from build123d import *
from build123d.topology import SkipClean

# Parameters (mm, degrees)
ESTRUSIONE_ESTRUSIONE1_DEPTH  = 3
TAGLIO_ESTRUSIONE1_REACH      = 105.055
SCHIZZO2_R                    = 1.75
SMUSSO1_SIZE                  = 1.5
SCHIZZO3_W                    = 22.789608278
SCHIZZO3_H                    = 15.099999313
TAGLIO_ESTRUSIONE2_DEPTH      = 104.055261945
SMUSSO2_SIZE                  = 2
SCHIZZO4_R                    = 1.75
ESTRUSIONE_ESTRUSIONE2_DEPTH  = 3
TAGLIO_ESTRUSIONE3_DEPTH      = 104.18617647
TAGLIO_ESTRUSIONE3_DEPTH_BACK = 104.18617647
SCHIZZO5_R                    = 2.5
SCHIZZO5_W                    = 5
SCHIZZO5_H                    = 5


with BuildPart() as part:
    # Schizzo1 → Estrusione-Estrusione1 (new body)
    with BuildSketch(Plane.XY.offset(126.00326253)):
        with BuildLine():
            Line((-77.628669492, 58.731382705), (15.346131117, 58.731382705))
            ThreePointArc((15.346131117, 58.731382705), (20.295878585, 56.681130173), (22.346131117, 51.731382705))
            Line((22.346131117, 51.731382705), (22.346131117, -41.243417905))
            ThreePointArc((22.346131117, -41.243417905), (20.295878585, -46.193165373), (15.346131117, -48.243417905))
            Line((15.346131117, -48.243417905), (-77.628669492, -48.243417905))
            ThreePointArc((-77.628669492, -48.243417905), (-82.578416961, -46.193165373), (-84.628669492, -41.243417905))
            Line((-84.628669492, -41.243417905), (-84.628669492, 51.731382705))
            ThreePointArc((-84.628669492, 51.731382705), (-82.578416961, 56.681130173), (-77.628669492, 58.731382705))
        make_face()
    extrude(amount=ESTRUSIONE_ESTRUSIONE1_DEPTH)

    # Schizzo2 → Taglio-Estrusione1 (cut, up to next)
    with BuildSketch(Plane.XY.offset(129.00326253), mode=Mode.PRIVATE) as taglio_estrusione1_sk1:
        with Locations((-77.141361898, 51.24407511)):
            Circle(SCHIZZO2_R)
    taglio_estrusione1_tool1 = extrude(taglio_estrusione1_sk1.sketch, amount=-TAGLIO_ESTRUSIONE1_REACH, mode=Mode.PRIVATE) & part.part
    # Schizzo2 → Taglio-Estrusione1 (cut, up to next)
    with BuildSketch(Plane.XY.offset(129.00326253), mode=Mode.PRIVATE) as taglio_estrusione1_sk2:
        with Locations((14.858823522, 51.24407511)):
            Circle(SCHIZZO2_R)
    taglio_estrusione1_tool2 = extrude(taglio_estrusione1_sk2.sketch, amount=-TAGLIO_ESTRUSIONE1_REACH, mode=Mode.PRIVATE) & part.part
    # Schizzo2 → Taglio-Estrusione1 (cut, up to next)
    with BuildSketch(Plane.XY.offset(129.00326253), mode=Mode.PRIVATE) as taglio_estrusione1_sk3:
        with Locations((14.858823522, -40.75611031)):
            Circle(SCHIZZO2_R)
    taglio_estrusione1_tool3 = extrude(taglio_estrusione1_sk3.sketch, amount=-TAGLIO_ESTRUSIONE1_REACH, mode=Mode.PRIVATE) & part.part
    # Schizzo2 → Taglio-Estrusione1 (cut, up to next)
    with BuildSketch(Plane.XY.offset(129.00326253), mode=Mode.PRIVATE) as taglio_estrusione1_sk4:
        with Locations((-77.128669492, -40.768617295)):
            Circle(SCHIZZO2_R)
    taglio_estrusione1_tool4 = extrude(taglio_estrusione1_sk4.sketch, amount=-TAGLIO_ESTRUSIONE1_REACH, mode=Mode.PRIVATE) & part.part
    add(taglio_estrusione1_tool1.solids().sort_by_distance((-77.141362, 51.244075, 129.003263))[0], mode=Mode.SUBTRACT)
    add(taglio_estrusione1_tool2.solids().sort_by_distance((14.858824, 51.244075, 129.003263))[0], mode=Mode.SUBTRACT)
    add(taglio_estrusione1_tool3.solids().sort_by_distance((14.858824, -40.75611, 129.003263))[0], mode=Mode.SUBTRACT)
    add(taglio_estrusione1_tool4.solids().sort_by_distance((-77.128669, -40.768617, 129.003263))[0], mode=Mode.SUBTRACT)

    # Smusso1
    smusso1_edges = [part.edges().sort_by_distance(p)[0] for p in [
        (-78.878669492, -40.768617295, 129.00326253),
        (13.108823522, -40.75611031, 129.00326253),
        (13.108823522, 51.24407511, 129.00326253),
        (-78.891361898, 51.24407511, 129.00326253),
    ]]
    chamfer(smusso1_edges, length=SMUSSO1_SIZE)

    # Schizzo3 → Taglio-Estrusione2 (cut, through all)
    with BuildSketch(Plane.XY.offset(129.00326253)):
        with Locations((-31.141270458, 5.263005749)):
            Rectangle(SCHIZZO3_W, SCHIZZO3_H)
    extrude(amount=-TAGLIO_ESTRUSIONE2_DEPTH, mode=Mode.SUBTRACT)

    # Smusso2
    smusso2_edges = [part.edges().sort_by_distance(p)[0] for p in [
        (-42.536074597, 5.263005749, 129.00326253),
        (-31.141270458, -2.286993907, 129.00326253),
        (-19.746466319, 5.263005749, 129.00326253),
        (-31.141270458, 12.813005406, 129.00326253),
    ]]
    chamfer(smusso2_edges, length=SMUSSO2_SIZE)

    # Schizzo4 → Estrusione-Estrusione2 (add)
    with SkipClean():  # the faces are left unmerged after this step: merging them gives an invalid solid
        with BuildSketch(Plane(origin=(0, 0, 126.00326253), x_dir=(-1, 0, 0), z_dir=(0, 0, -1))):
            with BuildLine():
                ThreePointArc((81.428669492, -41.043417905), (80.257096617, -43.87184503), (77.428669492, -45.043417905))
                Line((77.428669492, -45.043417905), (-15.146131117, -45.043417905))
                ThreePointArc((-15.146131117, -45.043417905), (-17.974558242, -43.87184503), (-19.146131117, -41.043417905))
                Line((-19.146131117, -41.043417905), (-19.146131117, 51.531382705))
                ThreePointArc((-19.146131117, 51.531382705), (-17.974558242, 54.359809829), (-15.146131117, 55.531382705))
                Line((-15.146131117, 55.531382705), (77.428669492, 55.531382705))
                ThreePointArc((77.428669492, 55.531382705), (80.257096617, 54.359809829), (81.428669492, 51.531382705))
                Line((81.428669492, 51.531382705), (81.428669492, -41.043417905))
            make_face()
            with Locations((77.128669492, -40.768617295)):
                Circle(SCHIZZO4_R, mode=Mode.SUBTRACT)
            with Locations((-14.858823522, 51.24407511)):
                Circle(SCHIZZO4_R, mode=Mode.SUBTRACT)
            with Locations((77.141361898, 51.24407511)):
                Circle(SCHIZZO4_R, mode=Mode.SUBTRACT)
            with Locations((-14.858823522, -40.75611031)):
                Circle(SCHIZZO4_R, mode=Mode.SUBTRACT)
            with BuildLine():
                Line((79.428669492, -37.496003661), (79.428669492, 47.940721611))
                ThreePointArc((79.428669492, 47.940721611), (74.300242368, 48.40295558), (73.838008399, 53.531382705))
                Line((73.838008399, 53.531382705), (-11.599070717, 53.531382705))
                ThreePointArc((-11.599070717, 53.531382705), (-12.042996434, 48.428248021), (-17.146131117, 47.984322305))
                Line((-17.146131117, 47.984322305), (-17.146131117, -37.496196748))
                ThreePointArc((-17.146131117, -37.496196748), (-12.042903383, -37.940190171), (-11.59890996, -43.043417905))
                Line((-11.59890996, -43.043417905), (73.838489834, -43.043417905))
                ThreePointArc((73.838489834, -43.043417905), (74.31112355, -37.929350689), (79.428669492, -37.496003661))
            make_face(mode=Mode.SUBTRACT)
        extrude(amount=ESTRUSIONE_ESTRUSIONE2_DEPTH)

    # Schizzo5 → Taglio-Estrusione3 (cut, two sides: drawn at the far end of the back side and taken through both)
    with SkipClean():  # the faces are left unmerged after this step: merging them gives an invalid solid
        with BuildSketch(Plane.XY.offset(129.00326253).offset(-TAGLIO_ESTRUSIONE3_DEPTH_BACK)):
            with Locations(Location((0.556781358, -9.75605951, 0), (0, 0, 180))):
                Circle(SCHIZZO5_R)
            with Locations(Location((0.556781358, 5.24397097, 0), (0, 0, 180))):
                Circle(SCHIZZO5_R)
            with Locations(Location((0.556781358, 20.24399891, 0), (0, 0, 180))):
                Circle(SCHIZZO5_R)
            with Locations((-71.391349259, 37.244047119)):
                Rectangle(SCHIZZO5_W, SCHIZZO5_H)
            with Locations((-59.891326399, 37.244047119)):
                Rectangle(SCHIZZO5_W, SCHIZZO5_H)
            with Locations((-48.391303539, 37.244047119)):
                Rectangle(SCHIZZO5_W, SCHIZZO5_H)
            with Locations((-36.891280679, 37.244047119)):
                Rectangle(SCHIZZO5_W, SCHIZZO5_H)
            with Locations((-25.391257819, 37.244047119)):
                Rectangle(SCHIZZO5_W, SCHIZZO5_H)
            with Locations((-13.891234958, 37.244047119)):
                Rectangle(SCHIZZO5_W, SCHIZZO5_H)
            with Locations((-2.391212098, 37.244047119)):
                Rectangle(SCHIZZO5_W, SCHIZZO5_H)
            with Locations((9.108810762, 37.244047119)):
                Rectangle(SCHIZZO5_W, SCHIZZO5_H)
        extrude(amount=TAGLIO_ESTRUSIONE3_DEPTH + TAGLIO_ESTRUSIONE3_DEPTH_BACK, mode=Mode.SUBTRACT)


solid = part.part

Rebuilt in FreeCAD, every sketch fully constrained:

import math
import FreeCAD as App
import Part
import Sketcher
from FreeCAD import Vector


def edges_at(feature, points):
    """Names of the edges that pass closest to the given points."""
    edges = feature.Shape.Edges
    near = lambda p: min(range(len(edges)), key=lambda i: edges[i].distToShape(Part.Vertex(*p))[0])
    return sorted({f"Edge{near(p) + 1}" for p in points})

doc = App.newDocument("Part")
body = doc.addObject("PartDesign::Body", "Body")

sketch1 = body.newObject("Sketcher::SketchObject", "Sketch")
sketch1.AttachmentSupport = (doc.getObject("XY_Plane"), [""])
sketch1.MapMode = "FlatFace"
sketch1.AttachmentOffset = App.Placement(Vector(0, 0, 126.003263), App.Rotation())
sketch1.addGeometry([
    Part.LineSegment(Vector(15.346131, 58.731383, 0), Vector(-77.628669, 58.731383, 0)),
    Part.ArcOfCircle(Part.Circle(Vector(-77.628669, 51.731383, 0), Vector(0, 0, 1), 7), math.radians(90), math.radians(180)),
    Part.LineSegment(Vector(-84.628669, 51.731383, 0), Vector(-84.628669, -41.243418, 0)),
    Part.ArcOfCircle(Part.Circle(Vector(-77.628669, -41.243418, 0), Vector(0, 0, 1), 7), math.radians(180), math.radians(270)),
    Part.LineSegment(Vector(-77.628669, -48.243418, 0), Vector(15.346131, -48.243418, 0)),
    Part.ArcOfCircle(Part.Circle(Vector(15.346131, -41.243418, 0), Vector(0, 0, 1), 7), math.radians(-90), math.radians(0)),
    Part.LineSegment(Vector(22.346131, -41.243418, 0), Vector(22.346131, 51.731383, 0)),
    Part.ArcOfCircle(Part.Circle(Vector(15.346131, 51.731383, 0), Vector(0, 0, 1), 7), math.radians(0), math.radians(90)),
], False)
sketch1.addConstraint([
    Sketcher.Constraint("Tangent", 0, 2, 1, 1),
    Sketcher.Constraint("Tangent", 1, 2, 2, 1),
    Sketcher.Constraint("Tangent", 2, 2, 3, 1),
    Sketcher.Constraint("Tangent", 3, 2, 4, 1),
    Sketcher.Constraint("Tangent", 4, 2, 5, 1),
    Sketcher.Constraint("Tangent", 5, 2, 6, 1),
    Sketcher.Constraint("Tangent", 6, 2, 7, 1),
    Sketcher.Constraint("Tangent", 7, 2, 0, 1),
    Sketcher.Constraint("Horizontal", 0),
    Sketcher.Constraint("Vertical", 2),
    Sketcher.Constraint("Horizontal", 4),
    Sketcher.Constraint("Vertical", 6),
    Sketcher.Constraint("Equal", 1, 3),
    Sketcher.Constraint("Equal", 3, 5),
    Sketcher.Constraint("Equal", 5, 7),
    Sketcher.Constraint("Equal", 4, 2),
    Sketcher.Constraint("Radius", 1, 7.0),
    Sketcher.Constraint("DistanceX", 0, 2, 0, 1, 92.974801),
    Sketcher.Constraint("DistanceX", 1, 3, -1, 1, 77.628669),
    Sketcher.Constraint("DistanceY", -1, 1, 1, 3, 51.731383),
])
pad1 = body.newObject("PartDesign::Pad", "Pad")
pad1.Profile = sketch1
pad1.Length = 3

sketch2 = body.newObject("Sketcher::SketchObject", "Sketch001")
sketch2.AttachmentSupport = (doc.getObject("XY_Plane"), [""])
sketch2.MapMode = "FlatFace"
sketch2.AttachmentOffset = App.Placement(Vector(0, 0, 129.003263), App.Rotation())
sketch2.addGeometry(Part.Circle(Vector(-77.141362, 51.244075, 0), Vector(0, 0, 1), 1.75), False)
sketch2.addConstraint([
    Sketcher.Constraint("Diameter", 0, 3.5),
    Sketcher.Constraint("DistanceX", 0, 3, -1, 1, 77.141362),
    Sketcher.Constraint("DistanceY", -1, 1, 0, 3, 51.244075),
])
pocket1 = body.newObject("PartDesign::Pocket", "Pocket")
pocket1.Profile = sketch2
pocket1.Type = "UpToFirst"

sketch3 = body.newObject("Sketcher::SketchObject", "Sketch002")
sketch3.AttachmentSupport = (doc.getObject("XY_Plane"), [""])
sketch3.MapMode = "FlatFace"
sketch3.AttachmentOffset = App.Placement(Vector(0, 0, 129.003263), App.Rotation())
sketch3.addGeometry(Part.Circle(Vector(14.858824, 51.244075, 0), Vector(0, 0, 1), 1.75), False)
sketch3.addConstraint([
    Sketcher.Constraint("Diameter", 0, 3.5),
    Sketcher.Constraint("DistanceX", -1, 1, 0, 3, 14.858824),
    Sketcher.Constraint("DistanceY", -1, 1, 0, 3, 51.244075),
])
pocket2 = body.newObject("PartDesign::Pocket", "Pocket001")
pocket2.Profile = sketch3
pocket2.Type = "UpToFirst"

sketch4 = body.newObject("Sketcher::SketchObject", "Sketch003")
sketch4.AttachmentSupport = (doc.getObject("XY_Plane"), [""])
sketch4.MapMode = "FlatFace"
sketch4.AttachmentOffset = App.Placement(Vector(0, 0, 129.003263), App.Rotation())
sketch4.addGeometry(Part.Circle(Vector(14.858824, -40.75611, 0), Vector(0, 0, 1), 1.75), False)
sketch4.addConstraint([
    Sketcher.Constraint("Diameter", 0, 3.5),
    Sketcher.Constraint("DistanceY", 0, 3, -1, 1, 40.75611),
    Sketcher.Constraint("DistanceX", -1, 1, 0, 3, 14.858824),
])
pocket3 = body.newObject("PartDesign::Pocket", "Pocket002")
pocket3.Profile = sketch4
pocket3.Type = "UpToFirst"

sketch5 = body.newObject("Sketcher::SketchObject", "Sketch004")
sketch5.AttachmentSupport = (doc.getObject("XY_Plane"), [""])
sketch5.MapMode = "FlatFace"
sketch5.AttachmentOffset = App.Placement(Vector(0, 0, 129.003263), App.Rotation())
sketch5.addGeometry(Part.Circle(Vector(-77.128669, -40.768617, 0), Vector(0, 0, 1), 1.75), False)
sketch5.addConstraint([
    Sketcher.Constraint("Diameter", 0, 3.5),
    Sketcher.Constraint("DistanceX", 0, 3, -1, 1, 77.128669),
    Sketcher.Constraint("DistanceY", 0, 3, -1, 1, 40.768617),
])
pocket4 = body.newObject("PartDesign::Pocket", "Pocket003")
pocket4.Profile = sketch5
pocket4.Type = "UpToFirst"
doc.recompute()

chamfer = body.newObject("PartDesign::Chamfer", "Chamfer")
chamfer.Base = (pocket4, edges_at(pocket4, [
    (-78.879, -40.769, 129.003),
    (13.109, -40.756, 129.003),
    (13.109, 51.244, 129.003),
    (-78.891, 51.244, 129.003),
]))
chamfer.Size = 1.5

sketch6 = body.newObject("Sketcher::SketchObject", "Sketch005")
sketch6.AttachmentSupport = (doc.getObject("XY_Plane"), [""])
sketch6.MapMode = "FlatFace"
sketch6.AttachmentOffset = App.Placement(Vector(0, 0, 129.003263), App.Rotation())
sketch6.addGeometry([
    Part.LineSegment(Vector(-42.536075, 12.813005, 0), Vector(-42.536075, -2.286994, 0)),
    Part.LineSegment(Vector(-42.536075, -2.286994, 0), Vector(-19.746466, -2.286994, 0)),
    Part.LineSegment(Vector(-19.746466, -2.286994, 0), Vector(-19.746466, 12.813005, 0)),
    Part.LineSegment(Vector(-19.746466, 12.813005, 0), Vector(-42.536075, 12.813005, 0)),
], False)
sketch6.addConstraint([
    Sketcher.Constraint("Coincident", 0, 2, 1, 1),
    Sketcher.Constraint("Coincident", 1, 2, 2, 1),
    Sketcher.Constraint("Coincident", 2, 2, 3, 1),
    Sketcher.Constraint("Coincident", 3, 2, 0, 1),
    Sketcher.Constraint("Vertical", 0),
    Sketcher.Constraint("Horizontal", 1),
    Sketcher.Constraint("Vertical", 2),
    Sketcher.Constraint("Horizontal", 3),
    Sketcher.Constraint("DistanceY", 0, 2, 0, 1, 15.099999),
    Sketcher.Constraint("DistanceX", 1, 1, 1, 2, 22.789608),
    Sketcher.Constraint("DistanceX", 0, 2, -1, 1, 42.536075),
    Sketcher.Constraint("DistanceY", 0, 2, -1, 1, 2.286994),
])
pocket5 = body.newObject("PartDesign::Pocket", "Pocket004")
pocket5.Profile = sketch6
pocket5.Type = "ThroughAll"
doc.recompute()

chamfer2 = body.newObject("PartDesign::Chamfer", "Chamfer001")
chamfer2.Base = (pocket5, edges_at(pocket5, [
    (-42.536, 5.263, 129.003),
    (-31.141, -2.287, 129.003),
    (-19.746, 5.263, 129.003),
    (-31.141, 12.813, 129.003),
]))
chamfer2.Size = 2

sketch7 = body.newObject("Sketcher::SketchObject", "Sketch006")
sketch7.AttachmentSupport = (doc.getObject("XY_Plane"), [""])
sketch7.MapMode = "FlatFace"
sketch7.AttachmentOffset = App.Placement(Vector(0, 0, 126.003263), App.Rotation())
sketch7.addGeometry([
    Part.ArcOfCircle(Part.Circle(Vector(-77.428669, -41.043418, 0), Vector(0, 0, 1), 4), math.radians(180), math.radians(270)),
    Part.LineSegment(Vector(-81.428669, -41.043418, 0), Vector(-81.428669, 51.531383, 0)),
    Part.ArcOfCircle(Part.Circle(Vector(-77.428669, 51.531383, 0), Vector(0, 0, 1), 4), math.radians(90), math.radians(180)),
    Part.LineSegment(Vector(-77.428669, 55.531383, 0), Vector(15.146131, 55.531383, 0)),
    Part.ArcOfCircle(Part.Circle(Vector(15.146131, 51.531383, 0), Vector(0, 0, 1), 4), math.radians(0), math.radians(90)),
    Part.LineSegment(Vector(19.146131, 51.531383, 0), Vector(19.146131, -41.043418, 0)),
    Part.ArcOfCircle(Part.Circle(Vector(15.146131, -41.043418, 0), Vector(0, 0, 1), 4), math.radians(-90), math.radians(0)),
    Part.LineSegment(Vector(15.146131, -45.043418, 0), Vector(-77.428669, -45.043418, 0)),
    Part.Circle(Vector(-77.128669, -40.768617, 0), Vector(0, 0, 1), 1.75),
    Part.Circle(Vector(14.858824, -40.75611, 0), Vector(0, 0, 1), 1.75),
    Part.Circle(Vector(-77.141362, 51.244075, 0), Vector(0, 0, 1), 1.75),
    Part.ArcOfCircle(Part.Circle(Vector(-77.128669, -40.768617, 0), Vector(0, 0, 1), 4), math.radians(-34.659633), math.radians(125.099632)),
    Part.LineSegment(Vector(-73.83849, -43.043418, 0), Vector(11.59891, -43.043418, 0)),
    Part.ArcOfCircle(Part.Circle(Vector(14.858824, -40.75611, 0), Vector(0, 0, 1), 3.982312), math.radians(54.944707), math.radians(215.055293)),
    Part.LineSegment(Vector(17.146131, -37.496197, 0), Vector(17.146131, 47.984322, 0)),
    Part.ArcOfCircle(Part.Circle(Vector(14.858824, 51.244075, 0), Vector(0, 0, 1), 3.982181), math.radians(144.943379), math.radians(305.056621)),
    Part.LineSegment(Vector(11.599071, 53.531383, 0), Vector(-73.838008, 53.531383, 0)),
    Part.ArcOfCircle(Part.Circle(Vector(-77.141362, 51.244075, 0), Vector(0, 0, 1), 4.01795), math.radians(-124.699498), math.radians(34.699498)),
    Part.LineSegment(Vector(-79.428669, 47.940722, 0), Vector(-79.428669, -37.496004, 0)),
    Part.Circle(Vector(14.858824, 51.244075, 0), Vector(0, 0, 1), 1.75),
], False)
sketch7.addConstraint([
    Sketcher.Constraint("Tangent", 0, 1, 1, 1),
    Sketcher.Constraint("Tangent", 1, 2, 2, 2),
    Sketcher.Constraint("Tangent", 2, 1, 3, 1),
    Sketcher.Constraint("Tangent", 3, 2, 4, 2),
    Sketcher.Constraint("Tangent", 4, 1, 5, 1),
    Sketcher.Constraint("Tangent", 5, 2, 6, 2),
    Sketcher.Constraint("Tangent", 6, 1, 7, 1),
    Sketcher.Constraint("Tangent", 7, 2, 0, 2),
    Sketcher.Constraint("Coincident", 11, 1, 12, 1),
    Sketcher.Constraint("Coincident", 12, 2, 13, 2),
    Sketcher.Constraint("Coincident", 13, 1, 14, 1),
    Sketcher.Constraint("Coincident", 14, 2, 15, 2),
    Sketcher.Constraint("Coincident", 15, 1, 16, 1),
    Sketcher.Constraint("Coincident", 16, 2, 17, 2),
    Sketcher.Constraint("Coincident", 17, 1, 18, 1),
    Sketcher.Constraint("Coincident", 18, 2, 11, 2),
    Sketcher.Constraint("Vertical", 1),
    Sketcher.Constraint("Horizontal", 3),
    Sketcher.Constraint("Vertical", 5),
    Sketcher.Constraint("Horizontal", 7),
    Sketcher.Constraint("Horizontal", 12),
    Sketcher.Constraint("Vertical", 14),
    Sketcher.Constraint("Horizontal", 16),
    Sketcher.Constraint("Vertical", 18),
    Sketcher.Constraint("Coincident", 11, 3, 8, 3),
    Sketcher.Constraint("Coincident", 13, 3, 9, 3),
    Sketcher.Constraint("Coincident", 17, 3, 10, 3),
    Sketcher.Constraint("Coincident", 19, 3, 15, 3),
    Sketcher.Constraint("Equal", 0, 2),
    Sketcher.Constraint("Equal", 2, 4),
    Sketcher.Constraint("Equal", 4, 6),
    Sketcher.Constraint("Equal", 8, 9),
    Sketcher.Constraint("Equal", 9, 10),
    Sketcher.Constraint("Equal", 6, 11),
    Sketcher.Constraint("Equal", 10, 19),
    Sketcher.Constraint("Horizontal", 10, 3, 15, 3),
    Sketcher.Constraint("Vertical", 13, 3, 15, 3),
    Sketcher.Constraint("Equal", 7, 1),
    Sketcher.Constraint("Radius", 0, 4.0),
    Sketcher.Constraint("Diameter", 8, 3.5),
    Sketcher.Constraint("DistanceY", 7, 2, 11, 1, 2.0),
    Sketcher.Constraint("DistanceX", 13, 1, 5, 2, 2.0),
    Sketcher.Constraint("DistanceY", 4, 3, 15, 1, 2.0),
    Sketcher.Constraint("DistanceX", 17, 1, 2, 3, 2.0),
    Sketcher.Constraint("DistanceX", 0, 3, 8, 3, 0.3),
    Sketcher.Constraint("DistanceY", 8, 3, 2, 3, 92.3),
    Sketcher.Constraint("Radius", 15, 3.982181),
    Sketcher.Constraint("Radius", 17, 4.01795),
    Sketcher.Constraint("DistanceX", 3, 1, 3, 2, 92.574801),
    Sketcher.Constraint("DistanceX", 12, 1, 12, 2, 85.4374),
    Sketcher.Constraint("Radius", 13, 3.982312),
    Sketcher.Constraint("DistanceX", 16, 2, 16, 1, 85.437079),
    Sketcher.Constraint("DistanceY", 14, 1, 14, 2, 85.480519),
    Sketcher.Constraint("DistanceY", 18, 2, 18, 1, 85.436725),
    Sketcher.Constraint("DistanceX", 0, 3, -1, 1, 77.428669),
    Sketcher.Constraint("DistanceY", 9, 3, -1, 1, 40.75611),
])
pad2 = body.newObject("PartDesign::Pad", "Pad001")
pad2.Profile = sketch7
pad2.Length = 3
pad2.Reversed = True

sketch8 = body.newObject("Sketcher::SketchObject", "Sketch007")
sketch8.AttachmentSupport = (doc.getObject("XY_Plane"), [""])
sketch8.MapMode = "FlatFace"
sketch8.AttachmentOffset = App.Placement(Vector(0, 0, 129.003263), App.Rotation())
sketch8.addGeometry([
    Part.Circle(Vector(0.556781, -9.75606, 0), Vector(0, 0, 1), 2.5),
    Part.Circle(Vector(0.556781, 5.243971, 0), Vector(0, 0, 1), 2.5),
    Part.Circle(Vector(0.556781, 20.243999, 0), Vector(0, 0, 1), 2.5),
    Part.LineSegment(Vector(-73.891349, 39.744047, 0), Vector(-73.891349, 34.744047, 0)),
    Part.LineSegment(Vector(-73.891349, 34.744047, 0), Vector(-68.891349, 34.744047, 0)),
    Part.LineSegment(Vector(-68.891349, 34.744047, 0), Vector(-68.891349, 39.744047, 0)),
    Part.LineSegment(Vector(-68.891349, 39.744047, 0), Vector(-73.891349, 39.744047, 0)),
    Part.LineSegment(Vector(-62.391326, 39.744047, 0), Vector(-62.391326, 34.744047, 0)),
    Part.LineSegment(Vector(-62.391326, 34.744047, 0), Vector(-57.391326, 34.744047, 0)),
    Part.LineSegment(Vector(-57.391326, 34.744047, 0), Vector(-57.391326, 39.744047, 0)),
    Part.LineSegment(Vector(-57.391326, 39.744047, 0), Vector(-62.391326, 39.744047, 0)),
    Part.LineSegment(Vector(-50.891304, 39.744047, 0), Vector(-50.891304, 34.744047, 0)),
    Part.LineSegment(Vector(-50.891304, 34.744047, 0), Vector(-45.891304, 34.744047, 0)),
    Part.LineSegment(Vector(-45.891304, 34.744047, 0), Vector(-45.891304, 39.744047, 0)),
    Part.LineSegment(Vector(-45.891304, 39.744047, 0), Vector(-50.891304, 39.744047, 0)),
    Part.LineSegment(Vector(-39.391281, 39.744047, 0), Vector(-39.391281, 34.744047, 0)),
    Part.LineSegment(Vector(-39.391281, 34.744047, 0), Vector(-34.391281, 34.744047, 0)),
    Part.LineSegment(Vector(-34.391281, 34.744047, 0), Vector(-34.391281, 39.744047, 0)),
    Part.LineSegment(Vector(-34.391281, 39.744047, 0), Vector(-39.391281, 39.744047, 0)),
    Part.LineSegment(Vector(-27.891258, 39.744047, 0), Vector(-27.891258, 34.744047, 0)),
    Part.LineSegment(Vector(-27.891258, 34.744047, 0), Vector(-22.891258, 34.744047, 0)),
    Part.LineSegment(Vector(-22.891258, 34.744047, 0), Vector(-22.891258, 39.744047, 0)),
    Part.LineSegment(Vector(-22.891258, 39.744047, 0), Vector(-27.891258, 39.744047, 0)),
    Part.LineSegment(Vector(-16.391235, 39.744047, 0), Vector(-16.391235, 34.744047, 0)),
    Part.LineSegment(Vector(-16.391235, 34.744047, 0), Vector(-11.391235, 34.744047, 0)),
    Part.LineSegment(Vector(-11.391235, 34.744047, 0), Vector(-11.391235, 39.744047, 0)),
    Part.LineSegment(Vector(-11.391235, 39.744047, 0), Vector(-16.391235, 39.744047, 0)),
    Part.LineSegment(Vector(-4.891212, 39.744047, 0), Vector(-4.891212, 34.744047, 0)),
    Part.LineSegment(Vector(-4.891212, 34.744047, 0), Vector(0.108788, 34.744047, 0)),
    Part.LineSegment(Vector(0.108788, 34.744047, 0), Vector(0.108788, 39.744047, 0)),
    Part.LineSegment(Vector(0.108788, 39.744047, 0), Vector(-4.891212, 39.744047, 0)),
    Part.LineSegment(Vector(6.608811, 39.744047, 0), Vector(6.608811, 34.744047, 0)),
    Part.LineSegment(Vector(6.608811, 34.744047, 0), Vector(11.608811, 34.744047, 0)),
    Part.LineSegment(Vector(11.608811, 34.744047, 0), Vector(11.608811, 39.744047, 0)),
    Part.LineSegment(Vector(11.608811, 39.744047, 0), Vector(6.608811, 39.744047, 0)),
], False)
sketch8.addConstraint([
    Sketcher.Constraint("Coincident", 3, 2, 4, 1),
    Sketcher.Constraint("Coincident", 4, 2, 5, 1),
    Sketcher.Constraint("Coincident", 5, 2, 6, 1),
    Sketcher.Constraint("Coincident", 6, 2, 3, 1),
    Sketcher.Constraint("Coincident", 7, 2, 8, 1),
    Sketcher.Constraint("Coincident", 8, 2, 9, 1),
    Sketcher.Constraint("Coincident", 9, 2, 10, 1),
    Sketcher.Constraint("Coincident", 10, 2, 7, 1),
    Sketcher.Constraint("Coincident", 11, 2, 12, 1),
    Sketcher.Constraint("Coincident", 12, 2, 13, 1),
    Sketcher.Constraint("Coincident", 13, 2, 14, 1),
    Sketcher.Constraint("Coincident", 14, 2, 11, 1),
    Sketcher.Constraint("Coincident", 15, 2, 16, 1),
    Sketcher.Constraint("Coincident", 16, 2, 17, 1),
    Sketcher.Constraint("Coincident", 17, 2, 18, 1),
    Sketcher.Constraint("Coincident", 18, 2, 15, 1),
    Sketcher.Constraint("Coincident", 19, 2, 20, 1),
    Sketcher.Constraint("Coincident", 20, 2, 21, 1),
    Sketcher.Constraint("Coincident", 21, 2, 22, 1),
    Sketcher.Constraint("Coincident", 22, 2, 19, 1),
    Sketcher.Constraint("Coincident", 23, 2, 24, 1),
    Sketcher.Constraint("Coincident", 24, 2, 25, 1),
    Sketcher.Constraint("Coincident", 25, 2, 26, 1),
    Sketcher.Constraint("Coincident", 26, 2, 23, 1),
    Sketcher.Constraint("Coincident", 27, 2, 28, 1),
    Sketcher.Constraint("Coincident", 28, 2, 29, 1),
    Sketcher.Constraint("Coincident", 29, 2, 30, 1),
    Sketcher.Constraint("Coincident", 30, 2, 27, 1),
    Sketcher.Constraint("Coincident", 31, 2, 32, 1),
    Sketcher.Constraint("Coincident", 32, 2, 33, 1),
    Sketcher.Constraint("Coincident", 33, 2, 34, 1),
    Sketcher.Constraint("Coincident", 34, 2, 31, 1),
    Sketcher.Constraint("Vertical", 3),
    Sketcher.Constraint("Horizontal", 4),
    Sketcher.Constraint("Vertical", 5),
    Sketcher.Constraint("Horizontal", 6),
    Sketcher.Constraint("Vertical", 7),
    Sketcher.Constraint("Horizontal", 8),
    Sketcher.Constraint("Vertical", 9),
    Sketcher.Constraint("Horizontal", 10),
    Sketcher.Constraint("Vertical", 11),
    Sketcher.Constraint("Horizontal", 12),
    Sketcher.Constraint("Vertical", 13),
    Sketcher.Constraint("Horizontal", 14),
    Sketcher.Constraint("Vertical", 15),
    Sketcher.Constraint("Horizontal", 16),
    Sketcher.Constraint("Vertical", 17),
    Sketcher.Constraint("Horizontal", 18),
    Sketcher.Constraint("Vertical", 19),
    Sketcher.Constraint("Horizontal", 20),
    Sketcher.Constraint("Vertical", 21),
    Sketcher.Constraint("Horizontal", 22),
    Sketcher.Constraint("Vertical", 23),
    Sketcher.Constraint("Horizontal", 24),
    Sketcher.Constraint("Vertical", 25),
    Sketcher.Constraint("Horizontal", 26),
    Sketcher.Constraint("Vertical", 27),
    Sketcher.Constraint("Horizontal", 28),
    Sketcher.Constraint("Vertical", 29),
    Sketcher.Constraint("Horizontal", 30),
    Sketcher.Constraint("Vertical", 31),
    Sketcher.Constraint("Horizontal", 32),
    Sketcher.Constraint("Vertical", 33),
    Sketcher.Constraint("Horizontal", 34),
    Sketcher.Constraint("Equal", 0, 1),
    Sketcher.Constraint("Equal", 1, 2),
    Sketcher.Constraint("Horizontal", 4, 2, 7, 2),
    Sketcher.Constraint("Horizontal", 6, 2, 9, 2),
    Sketcher.Constraint("Horizontal", 8, 2, 11, 2),
    Sketcher.Constraint("Horizontal", 10, 2, 13, 2),
    Sketcher.Constraint("Horizontal", 12, 2, 15, 2),
    Sketcher.Constraint("Horizontal", 14, 2, 17, 2),
    Sketcher.Constraint("Horizontal", 16, 2, 19, 2),
    Sketcher.Constraint("Horizontal", 18, 2, 21, 2),
    Sketcher.Constraint("Horizontal", 20, 2, 23, 2),
    Sketcher.Constraint("Horizontal", 22, 2, 25, 2),
    Sketcher.Constraint("Horizontal", 24, 2, 27, 2),
    Sketcher.Constraint("Horizontal", 26, 2, 29, 2),
    Sketcher.Constraint("Horizontal", 28, 2, 31, 2),
    Sketcher.Constraint("Horizontal", 30, 2, 33, 2),
    Sketcher.Constraint("Vertical", 0, 3, 1, 3),
    Sketcher.Constraint("Vertical", 1, 3, 2, 3),
    Sketcher.Constraint("Equal", 6, 8),
    Sketcher.Constraint("Equal", 10, 12),
    Sketcher.Constraint("Equal", 14, 16),
    Sketcher.Constraint("Equal", 18, 20),
    Sketcher.Constraint("Equal", 22, 24),
    Sketcher.Constraint("Equal", 26, 28),
    Sketcher.Constraint("Equal", 30, 32),
    Sketcher.Constraint("Equal", 34, 3),
    Sketcher.Constraint("Diameter", 0, 5.0),
    Sketcher.Constraint("DistanceX", 4, 1, 4, 2, 5.0),
    Sketcher.Constraint("DistanceY", -1, 1, 2, 3, 20.243999),
    Sketcher.Constraint("DistanceX", -1, 1, 0, 3, 0.556781),
    Sketcher.Constraint("DistanceY", 0, 3, -1, 1, 9.75606),
    Sketcher.Constraint("DistanceY", -1, 1, 1, 3, 5.243971),
    Sketcher.Constraint("DistanceX", 3, 2, -1, 1, 73.891349),
    Sketcher.Constraint("DistanceX", 15, 2, -1, 1, 39.391281),
    Sketcher.Constraint("DistanceX", -1, 1, 31, 2, 6.608811),
    Sketcher.Constraint("DistanceY", 2, 3, 3, 2, 14.500048),
    Sketcher.Constraint("DistanceX", 7, 2, -1, 1, 62.391326),
    Sketcher.Constraint("DistanceX", 11, 2, -1, 1, 50.891304),
    Sketcher.Constraint("DistanceX", 19, 2, -1, 1, 27.891258),
    Sketcher.Constraint("DistanceX", 23, 2, -1, 1, 16.391235),
    Sketcher.Constraint("DistanceX", 27, 2, -1, 1, 4.891212),
])
pocket6 = body.newObject("PartDesign::Pocket", "Pocket005")
pocket6.Profile = sketch8
pocket6.Type = "ThroughAll"
pocket6.Midplane = True

doc.recompute()
